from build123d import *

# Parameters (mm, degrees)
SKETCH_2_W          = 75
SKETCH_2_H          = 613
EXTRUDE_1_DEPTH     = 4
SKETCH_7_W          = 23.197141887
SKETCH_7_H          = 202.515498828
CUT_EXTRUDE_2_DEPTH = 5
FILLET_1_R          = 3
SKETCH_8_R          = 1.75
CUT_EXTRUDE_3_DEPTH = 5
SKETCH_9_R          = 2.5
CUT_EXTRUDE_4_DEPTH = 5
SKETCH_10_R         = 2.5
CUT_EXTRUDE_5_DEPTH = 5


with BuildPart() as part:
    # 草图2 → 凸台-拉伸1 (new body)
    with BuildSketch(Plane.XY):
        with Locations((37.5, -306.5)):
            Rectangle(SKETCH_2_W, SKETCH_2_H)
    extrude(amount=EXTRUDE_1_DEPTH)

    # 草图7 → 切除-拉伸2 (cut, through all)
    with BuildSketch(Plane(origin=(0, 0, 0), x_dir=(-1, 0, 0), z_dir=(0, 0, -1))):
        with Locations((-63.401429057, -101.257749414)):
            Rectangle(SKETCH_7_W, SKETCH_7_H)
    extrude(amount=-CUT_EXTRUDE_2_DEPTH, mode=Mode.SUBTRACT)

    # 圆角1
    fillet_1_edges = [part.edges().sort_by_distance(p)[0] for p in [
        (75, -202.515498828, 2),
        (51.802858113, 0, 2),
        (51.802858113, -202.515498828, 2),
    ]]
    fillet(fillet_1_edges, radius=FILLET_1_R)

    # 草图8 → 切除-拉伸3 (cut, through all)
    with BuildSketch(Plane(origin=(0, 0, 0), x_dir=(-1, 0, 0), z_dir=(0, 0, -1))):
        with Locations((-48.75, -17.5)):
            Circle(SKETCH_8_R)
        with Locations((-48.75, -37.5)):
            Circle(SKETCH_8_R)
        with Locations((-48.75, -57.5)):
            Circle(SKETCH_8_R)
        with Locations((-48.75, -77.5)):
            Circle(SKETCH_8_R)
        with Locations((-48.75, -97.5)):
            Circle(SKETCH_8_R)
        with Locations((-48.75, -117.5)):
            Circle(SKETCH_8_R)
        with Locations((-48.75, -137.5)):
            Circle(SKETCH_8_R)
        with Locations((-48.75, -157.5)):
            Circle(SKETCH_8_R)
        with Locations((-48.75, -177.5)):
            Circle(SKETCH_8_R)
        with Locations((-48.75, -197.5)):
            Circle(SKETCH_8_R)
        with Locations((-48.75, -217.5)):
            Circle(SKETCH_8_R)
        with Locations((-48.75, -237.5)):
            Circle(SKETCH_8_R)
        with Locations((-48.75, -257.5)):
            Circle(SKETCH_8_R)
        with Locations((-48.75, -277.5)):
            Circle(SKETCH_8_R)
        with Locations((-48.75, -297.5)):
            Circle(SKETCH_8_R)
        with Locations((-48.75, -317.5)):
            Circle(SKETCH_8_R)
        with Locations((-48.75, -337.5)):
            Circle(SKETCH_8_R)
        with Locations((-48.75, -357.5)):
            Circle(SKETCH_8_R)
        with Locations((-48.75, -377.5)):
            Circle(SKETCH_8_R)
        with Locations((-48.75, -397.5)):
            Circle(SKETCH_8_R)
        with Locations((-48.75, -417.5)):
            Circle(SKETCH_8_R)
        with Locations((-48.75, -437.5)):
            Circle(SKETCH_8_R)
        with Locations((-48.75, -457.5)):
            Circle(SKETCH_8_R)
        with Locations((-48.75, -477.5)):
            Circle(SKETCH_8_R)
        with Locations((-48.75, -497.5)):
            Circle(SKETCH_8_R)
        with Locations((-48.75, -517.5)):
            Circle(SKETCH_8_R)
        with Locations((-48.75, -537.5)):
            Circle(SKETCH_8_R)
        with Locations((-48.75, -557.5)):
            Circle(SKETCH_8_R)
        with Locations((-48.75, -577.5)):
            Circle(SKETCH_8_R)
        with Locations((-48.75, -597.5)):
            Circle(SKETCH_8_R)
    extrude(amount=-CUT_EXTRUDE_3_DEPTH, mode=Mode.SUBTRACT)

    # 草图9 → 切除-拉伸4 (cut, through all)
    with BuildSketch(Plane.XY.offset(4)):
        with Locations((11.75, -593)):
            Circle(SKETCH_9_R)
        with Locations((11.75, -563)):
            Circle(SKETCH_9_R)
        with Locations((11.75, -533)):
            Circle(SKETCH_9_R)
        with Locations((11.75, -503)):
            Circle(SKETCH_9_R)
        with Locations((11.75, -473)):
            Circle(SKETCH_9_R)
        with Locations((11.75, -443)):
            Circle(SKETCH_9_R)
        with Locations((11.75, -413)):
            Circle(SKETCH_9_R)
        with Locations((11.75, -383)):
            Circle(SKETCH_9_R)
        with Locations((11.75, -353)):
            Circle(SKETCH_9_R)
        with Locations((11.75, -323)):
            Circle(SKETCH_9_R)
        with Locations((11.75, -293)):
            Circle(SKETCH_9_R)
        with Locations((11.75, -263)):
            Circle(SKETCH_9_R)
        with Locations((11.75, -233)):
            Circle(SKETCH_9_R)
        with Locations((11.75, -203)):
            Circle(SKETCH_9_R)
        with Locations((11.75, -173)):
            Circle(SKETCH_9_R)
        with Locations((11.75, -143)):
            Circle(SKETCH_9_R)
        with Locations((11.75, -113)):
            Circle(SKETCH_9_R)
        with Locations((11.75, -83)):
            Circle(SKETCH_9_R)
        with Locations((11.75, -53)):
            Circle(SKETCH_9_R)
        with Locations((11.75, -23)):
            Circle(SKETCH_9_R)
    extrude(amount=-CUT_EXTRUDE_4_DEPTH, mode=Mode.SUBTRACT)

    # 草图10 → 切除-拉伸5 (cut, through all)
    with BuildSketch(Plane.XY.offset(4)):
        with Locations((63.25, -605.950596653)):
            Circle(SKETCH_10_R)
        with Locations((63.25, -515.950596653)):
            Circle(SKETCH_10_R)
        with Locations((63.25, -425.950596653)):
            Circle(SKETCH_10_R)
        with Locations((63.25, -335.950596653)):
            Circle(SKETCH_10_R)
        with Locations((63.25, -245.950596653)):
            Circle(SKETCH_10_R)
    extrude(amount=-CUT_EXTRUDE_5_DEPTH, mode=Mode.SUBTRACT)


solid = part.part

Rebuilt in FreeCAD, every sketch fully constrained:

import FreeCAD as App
import Part
import Sketcher


def edges_at(feature, points):
    """Names of the edges that pass closest to the given points."""
    edges = feature.Shape.Edges
    near = lambda p: min(range(len(edges)), key=lambda i: edges[i].distToShape(Part.Vertex(*p))[0])
    return sorted({f"Edge{near(p) + 1}" for p in points})


def add_polygon(sketch, points):
    """Adds a closed chain of lines whose ends are joined by coincident constraints."""
    first, n = sketch.GeometryCount, len(points)
    for a, b in zip(points, points[1:] + points[:1]):
        sketch.addGeometry(Part.LineSegment(App.Vector(*a, 0), App.Vector(*b, 0)), False)
    for i in range(n):
        sketch.addConstraint(Sketcher.Constraint("Coincident", first + i, 2, first + (i + 1) % n, 1))

doc = App.newDocument("Part")
body = doc.addObject("PartDesign::Body", "Body")

# Sketch on XY plane
sketch1 = doc.addObject("Sketcher::SketchObject", "Sketch")
body.addObject(sketch1)
sketch1.AttachmentSupport = (doc.XY_Plane, [""])
sketch1.MapMode = "FlatFace"
add_polygon(sketch1, [(0, 0), (0, -613), (75, -613), (75, 0)])  # lines 0-3
sketch1.addConstraint(Sketcher.Constraint("Vertical", 0))
sketch1.addConstraint(Sketcher.Constraint("Horizontal", 1))
sketch1.addConstraint(Sketcher.Constraint("Vertical", 2))
sketch1.addConstraint(Sketcher.Constraint("Horizontal", 3))
sketch1.addConstraint(Sketcher.Constraint("Coincident", 3, 2, -1, 1))
sketch1.addConstraint(Sketcher.Constraint("DistanceX", 1, 1, 1, 2, 75.0))
sketch1.addConstraint(Sketcher.Constraint("DistanceY", 0, 2, 0, 1, 613.0))
pad1 = doc.addObject("PartDesign::Pad", "Pad")
body.addObject(pad1)
pad1.Profile = sketch1
pad1.Length = 4

# Sketch on XY plane
sketch2 = doc.addObject("Sketcher::SketchObject", "Sketch001")
body.addObject(sketch2)
sketch2.AttachmentSupport = (doc.XY_Plane, [""])
sketch2.MapMode = "FlatFace"
add_polygon(sketch2, [(75, 0), (75, -203), (52, -203), (52, 0)])  # lines 0-3
sketch2.addConstraint(Sketcher.Constraint("Vertical", 0))
sketch2.addConstraint(Sketcher.Constraint("Horizontal", 1))
sketch2.addConstraint(Sketcher.Constraint("Vertical", 2))
sketch2.addConstraint(Sketcher.Constraint("Horizontal", 3))
sketch2.addConstraint(Sketcher.Constraint("PointOnObject", 2, 2, -1))
sketch2.addConstraint(Sketcher.Constraint("DistanceX", -1, 1, 0, 2, 75.0))
sketch2.addConstraint(Sketcher.Constraint("DistanceY", 0, 2, 0, 1, 202.515499))
sketch2.addConstraint(Sketcher.Constraint("DistanceX", 1, 2, 1, 1, 23.197142))
pocket1 = doc.addObject("PartDesign::Pocket", "Pocket")
body.addObject(pocket1)
pocket1.Profile = sketch2
pocket1.Type = "ThroughAll"
pocket1.Reversed = True
doc.recompute()

fillet = doc.addObject("PartDesign::Fillet", "Fillet")
body.addObject(fillet)
fillet.Base = (pocket1, edges_at(pocket1, [(75, -202.515, 2), (51.803, 0, 2), (51.803, -202.515, 2)]))
fillet.Radius = 3

# Sketch on XY plane
sketch3 = doc.addObject("Sketcher::SketchObject", "Sketch002")
body.addObject(sketch3)
sketch3.AttachmentSupport = (doc.XY_Plane, [""])
sketch3.MapMode = "FlatFace"
sketch3.addGeometry(Part.Circle(App.Vector(48.8, -17.5, 0), App.Vector(0, 0, 1), 1.8), False)
sketch3.addGeometry(Part.Circle(App.Vector(48.8, -37.5, 0), App.Vector(0, 0, 1), 1.8), False)
sketch3.addGeometry(Part.Circle(App.Vector(48.8, -57.5, 0), App.Vector(0, 0, 1), 1.8), False)
sketch3.addGeometry(Part.Circle(App.Vector(48.8, -77.5, 0), App.Vector(0, 0, 1), 1.8), False)
sketch3.addGeometry(Part.Circle(App.Vector(48.8, -97.5, 0), App.Vector(0, 0, 1), 1.8), False)
sketch3.addGeometry(Part.Circle(App.Vector(48.8, -117.5, 0), App.Vector(0, 0, 1), 1.8), False)
sketch3.addGeometry(Part.Circle(App.Vector(48.8, -137.5, 0), App.Vector(0, 0, 1), 1.8), False)
sketch3.addGeometry(Part.Circle(App.Vector(48.8, -157.5, 0), App.Vector(0, 0, 1), 1.8), False)
sketch3.addGeometry(Part.Circle(App.Vector(48.8, -177.5, 0), App.Vector(0, 0, 1), 1.8), False)
sketch3.addGeometry(Part.Circle(App.Vector(48.8, -197.5, 0), App.Vector(0, 0, 1), 1.8), False)
sketch3.addGeometry(Part.Circle(App.Vector(48.8, -217.5, 0), App.Vector(0, 0, 1), 1.8), False)
sketch3.addGeometry(Part.Circle(App.Vector(48.8, -237.5, 0), App.Vector(0, 0, 1), 1.8), False)
sketch3.addGeometry(Part.Circle(App.Vector(48.8, -257.5, 0), App.Vector(0, 0, 1), 1.8), False)
sketch3.addGeometry(Part.Circle(App.Vector(48.8, -277.5, 0), App.Vector(0, 0, 1), 1.8), False)
sketch3.addGeometry(Part.Circle(App.Vector(48.8, -297.5, 0), App.Vector(0, 0, 1), 1.8), False)
sketch3.addGeometry(Part.Circle(App.Vector(48.8, -317.5, 0), App.Vector(0, 0, 1), 1.8), False)
sketch3.addGeometry(Part.Circle(App.Vector(48.8, -337.5, 0), App.Vector(0, 0, 1), 1.8), False)
sketch3.addGeometry(Part.Circle(App.Vector(48.8, -357.5, 0), App.Vector(0, 0, 1), 1.8), False)
sketch3.addGeometry(Part.Circle(App.Vector(48.8, -377.5, 0), App.Vector(0, 0, 1), 1.8), False)
sketch3.addGeometry(Part.Circle(App.Vector(48.8, -397.5, 0), App.Vector(0, 0, 1), 1.8), False)
sketch3.addGeometry(Part.Circle(App.Vector(48.8, -417.5, 0), App.Vector(0, 0, 1), 1.8), False)
sketch3.addGeometry(Part.Circle(App.Vector(48.8, -437.5, 0), App.Vector(0, 0, 1), 1.8), False)
sketch3.addGeometry(Part.Circle(App.Vector(48.8, -457.5, 0), App.Vector(0, 0, 1), 1.8), False)
sketch3.addGeometry(Part.Circle(App.Vector(48.8, -477.5, 0), App.Vector(0, 0, 1), 1.8), False)
sketch3.addGeometry(Part.Circle(App.Vector(48.8, -497.5, 0), App.Vector(0, 0, 1), 1.8), False)
sketch3.addGeometry(Part.Circle(App.Vector(48.8, -517.5, 0), App.Vector(0, 0, 1), 1.8), False)
sketch3.addGeometry(Part.Circle(App.Vector(48.8, -537.5, 0), App.Vector(0, 0, 1), 1.8), False)
sketch3.addGeometry(Part.Circle(App.Vector(48.8, -557.5, 0), App.Vector(0, 0, 1), 1.8), False)
sketch3.addGeometry(Part.Circle(App.Vector(48.8, -577.5, 0), App.Vector(0, 0, 1), 1.8), False)
sketch3.addGeometry(Part.Circle(App.Vector(48.8, -597.5, 0), App.Vector(0, 0, 1), 1.8), False)
sketch3.addConstraint(Sketcher.Constraint("Equal", 0, 1))
sketch3.addConstraint(Sketcher.Constraint("Equal", 1, 2))
sketch3.addConstraint(Sketcher.Constraint("Equal", 2, 3))
sketch3.addConstraint(Sketcher.Constraint("Equal", 3, 4))
sketch3.addConstraint(Sketcher.Constraint("Equal", 4, 5))
sketch3.addConstraint(Sketcher.Constraint("Equal", 5, 6))
sketch3.addConstraint(Sketcher.Constraint("Equal", 6, 7))
sketch3.addConstraint(Sketcher.Constraint("Equal", 7, 8))
sketch3.addConstraint(Sketcher.Constraint("Equal", 8, 9))
sketch3.addConstraint(Sketcher.Constraint("Equal", 9, 10))
sketch3.addConstraint(Sketcher.Constraint("Equal", 10, 11))
sketch3.addConstraint(Sketcher.Constraint("Equal", 11, 12))
sketch3.addConstraint(Sketcher.Constraint("Equal", 12, 13))
sketch3.addConstraint(Sketcher.Constraint("Equal", 13, 14))
sketch3.addConstraint(Sketcher.Constraint("Equal", 14, 15))
sketch3.addConstraint(Sketcher.Constraint("Equal", 15, 16))
sketch3.addConstraint(Sketcher.Constraint("Equal", 16, 17))
sketch3.addConstraint(Sketcher.Constraint("Equal", 17, 18))
sketch3.addConstraint(Sketcher.Constraint("Equal", 18, 19))
sketch3.addConstraint(Sketcher.Constraint("Equal", 19, 20))
sketch3.addConstraint(Sketcher.Constraint("Equal", 20, 21))
sketch3.addConstraint(Sketcher.Constraint("Equal", 21, 22))
sketch3.addConstraint(Sketcher.Constraint("Equal", 22, 23))
sketch3.addConstraint(Sketcher.Constraint("Equal", 23, 24))
sketch3.addConstraint(Sketcher.Constraint("Equal", 24, 25))
sketch3.addConstraint(Sketcher.Constraint("Equal", 25, 26))
sketch3.addConstraint(Sketcher.Constraint("Equal", 26, 27))
sketch3.addConstraint(Sketcher.Constraint("Equal", 27, 28))
sketch3.addConstraint(Sketcher.Constraint("Equal", 28, 29))
sketch3.addConstraint(Sketcher.Constraint("Vertical", 0, 3, 1, 3))
sketch3.addConstraint(Sketcher.Constraint("Vertical", 1, 3, 2, 3))
sketch3.addConstraint(Sketcher.Constraint("Vertical", 2, 3, 3, 3))
sketch3.addConstraint(Sketcher.Constraint("Vertical", 3, 3, 4, 3))
sketch3.addConstraint(Sketcher.Constraint("Vertical", 4, 3, 5, 3))
sketch3.addConstraint(Sketcher.Constraint("Vertical", 5, 3, 6, 3))
sketch3.addConstraint(Sketcher.Constraint("Vertical", 6, 3, 7, 3))
sketch3.addConstraint(Sketcher.Constraint("Vertical", 7, 3, 8, 3))
sketch3.addConstraint(Sketcher.Constraint("Vertical", 8, 3, 9, 3))
sketch3.addConstraint(Sketcher.Constraint("Vertical", 9, 3, 10, 3))
sketch3.addConstraint(Sketcher.Constraint("Vertical", 10, 3, 11, 3))
sketch3.addConstraint(Sketcher.Constraint("Vertical", 11, 3, 12, 3))
sketch3.addConstraint(Sketcher.Constraint("Vertical", 12, 3, 13, 3))
sketch3.addConstraint(Sketcher.Constraint("Vertical", 13, 3, 14, 3))
sketch3.addConstraint(Sketcher.Constraint("Vertical", 14, 3, 15, 3))
sketch3.addConstraint(Sketcher.Constraint("Vertical", 15, 3, 16, 3))
sketch3.addConstraint(Sketcher.Constraint("Vertical", 16, 3, 17, 3))
sketch3.addConstraint(Sketcher.Constraint("Vertical", 17, 3, 18, 3))
sketch3.addConstraint(Sketcher.Constraint("Vertical", 18, 3, 19, 3))
sketch3.addConstraint(Sketcher.Constraint("Vertical", 19, 3, 20, 3))
sketch3.addConstraint(Sketcher.Constraint("Vertical", 20, 3, 21, 3))
sketch3.addConstraint(Sketcher.Constraint("Vertical", 21, 3, 22, 3))
sketch3.addConstraint(Sketcher.Constraint("Vertical", 22, 3, 23, 3))
sketch3.addConstraint(Sketcher.Constraint("Vertical", 23, 3, 24, 3))
sketch3.addConstraint(Sketcher.Constraint("Vertical", 24, 3, 25, 3))
sketch3.addConstraint(Sketcher.Constraint("Vertical", 25, 3, 26, 3))
sketch3.addConstraint(Sketcher.Constraint("Vertical", 26, 3, 27, 3))
sketch3.addConstraint(Sketcher.Constraint("Vertical", 27, 3, 28, 3))
sketch3.addConstraint(Sketcher.Constraint("Vertical", 28, 3, 29, 3))
sketch3.addConstraint(Sketcher.Constraint("Diameter", 0, 3.5))
sketch3.addConstraint(Sketcher.Constraint("DistanceY", 1, 3, 0, 3, 20.0))
sketch3.addConstraint(Sketcher.Constraint("DistanceY", 2, 3, 1, 3, 20.0))
sketch3.addConstraint(Sketcher.Constraint("DistanceY", 3, 3, 2, 3, 20.0))
sketch3.addConstraint(Sketcher.Constraint("DistanceY", 4, 3, 3, 3, 20.0))
sketch3.addConstraint(Sketcher.Constraint("DistanceY", 5, 3, 4, 3, 20.0))
sketch3.addConstraint(Sketcher.Constraint("DistanceY", 6, 3, 5, 3, 20.0))
sketch3.addConstraint(Sketcher.Constraint("DistanceY", 7, 3, 6, 3, 20.0))
sketch3.addConstraint(Sketcher.Constraint("DistanceY", 8, 3, 7, 3, 20.0))
sketch3.addConstraint(Sketcher.Constraint("DistanceY", 9, 3, 8, 3, 20.0))
sketch3.addConstraint(Sketcher.Constraint("DistanceY", 10, 3, 9, 3, 20.0))
sketch3.addConstraint(Sketcher.Constraint("DistanceY", 11, 3, 10, 3, 20.0))
sketch3.addConstraint(Sketcher.Constraint("DistanceY", 12, 3, 11, 3, 20.0))
sketch3.addConstraint(Sketcher.Constraint("DistanceY", 13, 3, 12, 3, 20.0))
sketch3.addConstraint(Sketcher.Constraint("DistanceY", 14, 3, 13, 3, 20.0))
sketch3.addConstraint(Sketcher.Constraint("DistanceY", 15, 3, 14, 3, 20.0))
sketch3.addConstraint(Sketcher.Constraint("DistanceY", 16, 3, 15, 3, 20.0))
sketch3.addConstraint(Sketcher.Constraint("DistanceY", 17, 3, 16, 3, 20.0))
sketch3.addConstraint(Sketcher.Constraint("DistanceY", 18, 3, 17, 3, 20.0))
sketch3.addConstraint(Sketcher.Constraint("DistanceY", 19, 3, 18, 3, 20.0))
sketch3.addConstraint(Sketcher.Constraint("DistanceY", 20, 3, 19, 3, 20.0))
sketch3.addConstraint(Sketcher.Constraint("DistanceY", 21, 3, 20, 3, 20.0))
sketch3.addConstraint(Sketcher.Constraint("DistanceY", 22, 3, 21, 3, 20.0))
sketch3.addConstraint(Sketcher.Constraint("DistanceY", 23, 3, 22, 3, 20.0))
sketch3.addConstraint(Sketcher.Constraint("DistanceY", 24, 3, 23, 3, 20.0))
sketch3.addConstraint(Sketcher.Constraint("DistanceY", 25, 3, 24, 3, 20.0))
sketch3.addConstraint(Sketcher.Constraint("DistanceY", 26, 3, 25, 3, 20.0))
sketch3.addConstraint(Sketcher.Constraint("DistanceY", 27, 3, 26, 3, 20.0))
sketch3.addConstraint(Sketcher.Constraint("DistanceY", 28, 3, 27, 3, 20.0))
sketch3.addConstraint(Sketcher.Constraint("DistanceY", 29, 3, 28, 3, 20.0))
sketch3.addConstraint(Sketcher.Constraint("DistanceY", 0, 3, -1, 1, 17.5))
sketch3.addConstraint(Sketcher.Constraint("DistanceX", -1, 1, 0, 3, 48.75))
pocket2 = doc.addObject("PartDesign::Pocket", "Pocket001")
body.addObject(pocket2)
pocket2.Profile = sketch3
pocket2.Type = "ThroughAll"
pocket2.Reversed = True

# Sketch on XY plane
sketch4 = doc.addObject("Sketcher::SketchObject", "Sketch003")
body.addObject(sketch4)
sketch4.AttachmentSupport = (doc.XY_Plane, [""])
sketch4.MapMode = "FlatFace"
sketch4.AttachmentOffset = App.Placement(App.Vector(0, 0, 4), App.Rotation())
sketch4.addGeometry(Part.Circle(App.Vector(11.8, -593, 0), App.Vector(0, 0, 1), 2.5), False)
sketch4.addGeometry(Part.Circle(App.Vector(11.8, -563, 0), App.Vector(0, 0, 1), 2.5), False)
sketch4.addGeometry(Part.Circle(App.Vector(11.8, -533, 0), App.Vector(0, 0, 1), 2.5), False)
sketch4.addGeometry(Part.Circle(App.Vector(11.8, -503, 0), App.Vector(0, 0, 1), 2.5), False)
sketch4.addGeometry(Part.Circle(App.Vector(11.8, -473, 0), App.Vector(0, 0, 1), 2.5), False)
sketch4.addGeometry(Part.Circle(App.Vector(11.8, -443, 0), App.Vector(0, 0, 1), 2.5), False)
sketch4.addGeometry(Part.Circle(App.Vector(11.8, -413, 0), App.Vector(0, 0, 1), 2.5), False)
sketch4.addGeometry(Part.Circle(App.Vector(11.8, -383, 0), App.Vector(0, 0, 1), 2.5), False)
sketch4.addGeometry(Part.Circle(App.Vector(11.8, -353, 0), App.Vector(0, 0, 1), 2.5), False)
sketch4.addGeometry(Part.Circle(App.Vector(11.8, -323, 0), App.Vector(0, 0, 1), 2.5), False)
sketch4.addGeometry(Part.Circle(App.Vector(11.8, -293, 0), App.Vector(0, 0, 1), 2.5), False)
sketch4.addGeometry(Part.Circle(App.Vector(11.8, -263, 0), App.Vector(0, 0, 1), 2.5), False)
sketch4.addGeometry(Part.Circle(App.Vector(11.8, -233, 0), App.Vector(0, 0, 1), 2.5), False)
sketch4.addGeometry(Part.Circle(App.Vector(11.8, -203, 0), App.Vector(0, 0, 1), 2.5), False)
sketch4.addGeometry(Part.Circle(App.Vector(11.8, -173, 0), App.Vector(0, 0, 1), 2.5), False)
sketch4.addGeometry(Part.Circle(App.Vector(11.8, -143, 0), App.Vector(0, 0, 1), 2.5), False)
sketch4.addGeometry(Part.Circle(App.Vector(11.8, -113, 0), App.Vector(0, 0, 1), 2.5), False)
sketch4.addGeometry(Part.Circle(App.Vector(11.8, -83, 0), App.Vector(0, 0, 1), 2.5), False)
sketch4.addGeometry(Part.Circle(App.Vector(11.8, -53, 0), App.Vector(0, 0, 1), 2.5), False)
sketch4.addGeometry(Part.Circle(App.Vector(11.8, -23, 0), App.Vector(0, 0, 1), 2.5), False)
sketch4.addConstraint(Sketcher.Constraint("Equal", 0, 1))
sketch4.addConstraint(Sketcher.Constraint("Equal", 1, 2))
sketch4.addConstraint(Sketcher.Constraint("Equal", 2, 3))
sketch4.addConstraint(Sketcher.Constraint("Equal", 3, 4))
sketch4.addConstraint(Sketcher.Constraint("Equal", 4, 5))
sketch4.addConstraint(Sketcher.Constraint("Equal", 5, 6))
sketch4.addConstraint(Sketcher.Constraint("Equal", 6, 7))
sketch4.addConstraint(Sketcher.Constraint("Equal", 7, 8))
sketch4.addConstraint(Sketcher.Constraint("Equal", 8, 9))
sketch4.addConstraint(Sketcher.Constraint("Equal", 9, 10))
sketch4.addConstraint(Sketcher.Constraint("Equal", 10, 11))
sketch4.addConstraint(Sketcher.Constraint("Equal", 11, 12))
sketch4.addConstraint(Sketcher.Constraint("Equal", 12, 13))
sketch4.addConstraint(Sketcher.Constraint("Equal", 13, 14))
sketch4.addConstraint(Sketcher.Constraint("Equal", 14, 15))
sketch4.addConstraint(Sketcher.Constraint("Equal", 15, 16))
sketch4.addConstraint(Sketcher.Constraint("Equal", 16, 17))
sketch4.addConstraint(Sketcher.Constraint("Equal", 17, 18))
sketch4.addConstraint(Sketcher.Constraint("Equal", 18, 19))
sketch4.addConstraint(Sketcher.Constraint("Vertical", 0, 3, 1, 3))
sketch4.addConstraint(Sketcher.Constraint("Vertical", 1, 3, 2, 3))
sketch4.addConstraint(Sketcher.Constraint("Vertical", 2, 3, 3, 3))
sketch4.addConstraint(Sketcher.Constraint("Vertical", 3, 3, 4, 3))
sketch4.addConstraint(Sketcher.Constraint("Vertical", 4, 3, 5, 3))
sketch4.addConstraint(Sketcher.Constraint("Vertical", 5, 3, 6, 3))
sketch4.addConstraint(Sketcher.Constraint("Vertical", 6, 3, 7, 3))
sketch4.addConstraint(Sketcher.Constraint("Vertical", 7, 3, 8, 3))
sketch4.addConstraint(Sketcher.Constraint("Vertical", 8, 3, 9, 3))
sketch4.addConstraint(Sketcher.Constraint("Vertical", 9, 3, 10, 3))
sketch4.addConstraint(Sketcher.Constraint("Vertical", 10, 3, 11, 3))
sketch4.addConstraint(Sketcher.Constraint("Vertical", 11, 3, 12, 3))
sketch4.addConstraint(Sketcher.Constraint("Vertical", 12, 3, 13, 3))
sketch4.addConstraint(Sketcher.Constraint("Vertical", 13, 3, 14, 3))
sketch4.addConstraint(Sketcher.Constraint("Vertical", 14, 3, 15, 3))
sketch4.addConstraint(Sketcher.Constraint("Vertical", 15, 3, 16, 3))
sketch4.addConstraint(Sketcher.Constraint("Vertical", 16, 3, 17, 3))
sketch4.addConstraint(Sketcher.Constraint("Vertical", 17, 3, 18, 3))
sketch4.addConstraint(Sketcher.Constraint("Vertical", 18, 3, 19, 3))
sketch4.addConstraint(Sketcher.Constraint("Diameter", 0, 5.0))
sketch4.addConstraint(Sketcher.Constraint("DistanceY", 0, 3, -1, 1, 593.0))
sketch4.addConstraint(Sketcher.Constraint("DistanceY", 1, 3, -1, 1, 563.0))
sketch4.addConstraint(Sketcher.Constraint("DistanceY", 2, 3, -1, 1, 533.0))
sketch4.addConstraint(Sketcher.Constraint("DistanceY", 3, 3, -1, 1, 503.0))
sketch4.addConstraint(Sketcher.Constraint("DistanceY", 4, 3, -1, 1, 473.0))
sketch4.addConstraint(Sketcher.Constraint("DistanceY", 5, 3, -1, 1, 443.0))
sketch4.addConstraint(Sketcher.Constraint("DistanceY", 6, 3, -1, 1, 413.0))
sketch4.addConstraint(Sketcher.Constraint("DistanceY", 7, 3, -1, 1, 383.0))
sketch4.addConstraint(Sketcher.Constraint("DistanceY", 8, 3, -1, 1, 353.0))
sketch4.addConstraint(Sketcher.Constraint("DistanceY", 9, 3, -1, 1, 323.0))
sketch4.addConstraint(Sketcher.Constraint("DistanceY", 10, 3, -1, 1, 293.0))
sketch4.addConstraint(Sketcher.Constraint("DistanceY", 11, 3, -1, 1, 263.0))
sketch4.addConstraint(Sketcher.Constraint("DistanceY", 12, 3, -1, 1, 233.0))
sketch4.addConstraint(Sketcher.Constraint("DistanceY", 13, 3, -1, 1, 203.0))
sketch4.addConstraint(Sketcher.Constraint("DistanceY", 14, 3, -1, 1, 173.0))
sketch4.addConstraint(Sketcher.Constraint("DistanceY", 15, 3, -1, 1, 143.0))
sketch4.addConstraint(Sketcher.Constraint("DistanceY", 16, 3, -1, 1, 113.0))
sketch4.addConstraint(Sketcher.Constraint("DistanceY", 17, 3, -1, 1, 83.0))
sketch4.addConstraint(Sketcher.Constraint("DistanceY", 18, 3, -1, 1, 53.0))
sketch4.addConstraint(Sketcher.Constraint("DistanceY", 19, 3, -1, 1, 23.0))
sketch4.addConstraint(Sketcher.Constraint("DistanceX", -1, 1, 0, 3, 11.75))
pocket3 = doc.addObject("PartDesign::Pocket", "Pocket002")
body.addObject(pocket3)
pocket3.Profile = sketch4
pocket3.Type = "ThroughAll"

# Sketch on XY plane
sketch5 = doc.addObject("Sketcher::SketchObject", "Sketch004")
body.addObject(sketch5)
sketch5.AttachmentSupport = (doc.XY_Plane, [""])
sketch5.MapMode = "FlatFace"
sketch5.AttachmentOffset = App.Placement(App.Vector(0, 0, 4), App.Rotation())
sketch5.addGeometry(Part.Circle(App.Vector(63.2, -606, 0), App.Vector(0, 0, 1), 2.5), False)
sketch5.addGeometry(Part.Circle(App.Vector(63.2, -516, 0), App.Vector(0, 0, 1), 2.5), False)
sketch5.addGeometry(Part.Circle(App.Vector(63.2, -426, 0), App.Vector(0, 0, 1), 2.5), False)
sketch5.addGeometry(Part.Circle(App.Vector(63.2, -336, 0), App.Vector(0, 0, 1), 2.5), False)
sketch5.addGeometry(Part.Circle(App.Vector(63.2, -246, 0), App.Vector(0, 0, 1), 2.5), False)
sketch5.addConstraint(Sketcher.Constraint("Equal", 0, 1))
sketch5.addConstraint(Sketcher.Constraint("Equal", 1, 2))
sketch5.addConstraint(Sketcher.Constraint("Equal", 2, 3))
sketch5.addConstraint(Sketcher.Constraint("Equal", 3, 4))
sketch5.addConstraint(Sketcher.Constraint("Vertical", 0, 3, 1, 3))
sketch5.addConstraint(Sketcher.Constraint("Vertical", 1, 3, 2, 3))
sketch5.addConstraint(Sketcher.Constraint("Vertical", 2, 3, 3, 3))
sketch5.addConstraint(Sketcher.Constraint("Vertical", 3, 3, 4, 3))
sketch5.addConstraint(Sketcher.Constraint("Diameter", 0, 5.0))
sketch5.addConstraint(Sketcher.Constraint("DistanceY", 0, 3, 1, 3, 90.0))
sketch5.addConstraint(Sketcher.Constraint("DistanceY", 1, 3, 2, 3, 90.0))
sketch5.addConstraint(Sketcher.Constraint("DistanceY", 2, 3, 3, 3, 90.0))
sketch5.addConstraint(Sketcher.Constraint("DistanceY", 3, 3, 4, 3, 90.0))
sketch5.addConstraint(Sketcher.Constraint("DistanceX", -1, 1, 0, 3, 63.25))
sketch5.addConstraint(Sketcher.Constraint("DistanceY", 0, 3, -1, 1, 605.950597))
pocket4 = doc.addObject("PartDesign::Pocket", "Pocket003")
body.addObject(pocket4)
pocket4.Profile = sketch5
pocket4.Type = "ThroughAll"

doc.recompute()
